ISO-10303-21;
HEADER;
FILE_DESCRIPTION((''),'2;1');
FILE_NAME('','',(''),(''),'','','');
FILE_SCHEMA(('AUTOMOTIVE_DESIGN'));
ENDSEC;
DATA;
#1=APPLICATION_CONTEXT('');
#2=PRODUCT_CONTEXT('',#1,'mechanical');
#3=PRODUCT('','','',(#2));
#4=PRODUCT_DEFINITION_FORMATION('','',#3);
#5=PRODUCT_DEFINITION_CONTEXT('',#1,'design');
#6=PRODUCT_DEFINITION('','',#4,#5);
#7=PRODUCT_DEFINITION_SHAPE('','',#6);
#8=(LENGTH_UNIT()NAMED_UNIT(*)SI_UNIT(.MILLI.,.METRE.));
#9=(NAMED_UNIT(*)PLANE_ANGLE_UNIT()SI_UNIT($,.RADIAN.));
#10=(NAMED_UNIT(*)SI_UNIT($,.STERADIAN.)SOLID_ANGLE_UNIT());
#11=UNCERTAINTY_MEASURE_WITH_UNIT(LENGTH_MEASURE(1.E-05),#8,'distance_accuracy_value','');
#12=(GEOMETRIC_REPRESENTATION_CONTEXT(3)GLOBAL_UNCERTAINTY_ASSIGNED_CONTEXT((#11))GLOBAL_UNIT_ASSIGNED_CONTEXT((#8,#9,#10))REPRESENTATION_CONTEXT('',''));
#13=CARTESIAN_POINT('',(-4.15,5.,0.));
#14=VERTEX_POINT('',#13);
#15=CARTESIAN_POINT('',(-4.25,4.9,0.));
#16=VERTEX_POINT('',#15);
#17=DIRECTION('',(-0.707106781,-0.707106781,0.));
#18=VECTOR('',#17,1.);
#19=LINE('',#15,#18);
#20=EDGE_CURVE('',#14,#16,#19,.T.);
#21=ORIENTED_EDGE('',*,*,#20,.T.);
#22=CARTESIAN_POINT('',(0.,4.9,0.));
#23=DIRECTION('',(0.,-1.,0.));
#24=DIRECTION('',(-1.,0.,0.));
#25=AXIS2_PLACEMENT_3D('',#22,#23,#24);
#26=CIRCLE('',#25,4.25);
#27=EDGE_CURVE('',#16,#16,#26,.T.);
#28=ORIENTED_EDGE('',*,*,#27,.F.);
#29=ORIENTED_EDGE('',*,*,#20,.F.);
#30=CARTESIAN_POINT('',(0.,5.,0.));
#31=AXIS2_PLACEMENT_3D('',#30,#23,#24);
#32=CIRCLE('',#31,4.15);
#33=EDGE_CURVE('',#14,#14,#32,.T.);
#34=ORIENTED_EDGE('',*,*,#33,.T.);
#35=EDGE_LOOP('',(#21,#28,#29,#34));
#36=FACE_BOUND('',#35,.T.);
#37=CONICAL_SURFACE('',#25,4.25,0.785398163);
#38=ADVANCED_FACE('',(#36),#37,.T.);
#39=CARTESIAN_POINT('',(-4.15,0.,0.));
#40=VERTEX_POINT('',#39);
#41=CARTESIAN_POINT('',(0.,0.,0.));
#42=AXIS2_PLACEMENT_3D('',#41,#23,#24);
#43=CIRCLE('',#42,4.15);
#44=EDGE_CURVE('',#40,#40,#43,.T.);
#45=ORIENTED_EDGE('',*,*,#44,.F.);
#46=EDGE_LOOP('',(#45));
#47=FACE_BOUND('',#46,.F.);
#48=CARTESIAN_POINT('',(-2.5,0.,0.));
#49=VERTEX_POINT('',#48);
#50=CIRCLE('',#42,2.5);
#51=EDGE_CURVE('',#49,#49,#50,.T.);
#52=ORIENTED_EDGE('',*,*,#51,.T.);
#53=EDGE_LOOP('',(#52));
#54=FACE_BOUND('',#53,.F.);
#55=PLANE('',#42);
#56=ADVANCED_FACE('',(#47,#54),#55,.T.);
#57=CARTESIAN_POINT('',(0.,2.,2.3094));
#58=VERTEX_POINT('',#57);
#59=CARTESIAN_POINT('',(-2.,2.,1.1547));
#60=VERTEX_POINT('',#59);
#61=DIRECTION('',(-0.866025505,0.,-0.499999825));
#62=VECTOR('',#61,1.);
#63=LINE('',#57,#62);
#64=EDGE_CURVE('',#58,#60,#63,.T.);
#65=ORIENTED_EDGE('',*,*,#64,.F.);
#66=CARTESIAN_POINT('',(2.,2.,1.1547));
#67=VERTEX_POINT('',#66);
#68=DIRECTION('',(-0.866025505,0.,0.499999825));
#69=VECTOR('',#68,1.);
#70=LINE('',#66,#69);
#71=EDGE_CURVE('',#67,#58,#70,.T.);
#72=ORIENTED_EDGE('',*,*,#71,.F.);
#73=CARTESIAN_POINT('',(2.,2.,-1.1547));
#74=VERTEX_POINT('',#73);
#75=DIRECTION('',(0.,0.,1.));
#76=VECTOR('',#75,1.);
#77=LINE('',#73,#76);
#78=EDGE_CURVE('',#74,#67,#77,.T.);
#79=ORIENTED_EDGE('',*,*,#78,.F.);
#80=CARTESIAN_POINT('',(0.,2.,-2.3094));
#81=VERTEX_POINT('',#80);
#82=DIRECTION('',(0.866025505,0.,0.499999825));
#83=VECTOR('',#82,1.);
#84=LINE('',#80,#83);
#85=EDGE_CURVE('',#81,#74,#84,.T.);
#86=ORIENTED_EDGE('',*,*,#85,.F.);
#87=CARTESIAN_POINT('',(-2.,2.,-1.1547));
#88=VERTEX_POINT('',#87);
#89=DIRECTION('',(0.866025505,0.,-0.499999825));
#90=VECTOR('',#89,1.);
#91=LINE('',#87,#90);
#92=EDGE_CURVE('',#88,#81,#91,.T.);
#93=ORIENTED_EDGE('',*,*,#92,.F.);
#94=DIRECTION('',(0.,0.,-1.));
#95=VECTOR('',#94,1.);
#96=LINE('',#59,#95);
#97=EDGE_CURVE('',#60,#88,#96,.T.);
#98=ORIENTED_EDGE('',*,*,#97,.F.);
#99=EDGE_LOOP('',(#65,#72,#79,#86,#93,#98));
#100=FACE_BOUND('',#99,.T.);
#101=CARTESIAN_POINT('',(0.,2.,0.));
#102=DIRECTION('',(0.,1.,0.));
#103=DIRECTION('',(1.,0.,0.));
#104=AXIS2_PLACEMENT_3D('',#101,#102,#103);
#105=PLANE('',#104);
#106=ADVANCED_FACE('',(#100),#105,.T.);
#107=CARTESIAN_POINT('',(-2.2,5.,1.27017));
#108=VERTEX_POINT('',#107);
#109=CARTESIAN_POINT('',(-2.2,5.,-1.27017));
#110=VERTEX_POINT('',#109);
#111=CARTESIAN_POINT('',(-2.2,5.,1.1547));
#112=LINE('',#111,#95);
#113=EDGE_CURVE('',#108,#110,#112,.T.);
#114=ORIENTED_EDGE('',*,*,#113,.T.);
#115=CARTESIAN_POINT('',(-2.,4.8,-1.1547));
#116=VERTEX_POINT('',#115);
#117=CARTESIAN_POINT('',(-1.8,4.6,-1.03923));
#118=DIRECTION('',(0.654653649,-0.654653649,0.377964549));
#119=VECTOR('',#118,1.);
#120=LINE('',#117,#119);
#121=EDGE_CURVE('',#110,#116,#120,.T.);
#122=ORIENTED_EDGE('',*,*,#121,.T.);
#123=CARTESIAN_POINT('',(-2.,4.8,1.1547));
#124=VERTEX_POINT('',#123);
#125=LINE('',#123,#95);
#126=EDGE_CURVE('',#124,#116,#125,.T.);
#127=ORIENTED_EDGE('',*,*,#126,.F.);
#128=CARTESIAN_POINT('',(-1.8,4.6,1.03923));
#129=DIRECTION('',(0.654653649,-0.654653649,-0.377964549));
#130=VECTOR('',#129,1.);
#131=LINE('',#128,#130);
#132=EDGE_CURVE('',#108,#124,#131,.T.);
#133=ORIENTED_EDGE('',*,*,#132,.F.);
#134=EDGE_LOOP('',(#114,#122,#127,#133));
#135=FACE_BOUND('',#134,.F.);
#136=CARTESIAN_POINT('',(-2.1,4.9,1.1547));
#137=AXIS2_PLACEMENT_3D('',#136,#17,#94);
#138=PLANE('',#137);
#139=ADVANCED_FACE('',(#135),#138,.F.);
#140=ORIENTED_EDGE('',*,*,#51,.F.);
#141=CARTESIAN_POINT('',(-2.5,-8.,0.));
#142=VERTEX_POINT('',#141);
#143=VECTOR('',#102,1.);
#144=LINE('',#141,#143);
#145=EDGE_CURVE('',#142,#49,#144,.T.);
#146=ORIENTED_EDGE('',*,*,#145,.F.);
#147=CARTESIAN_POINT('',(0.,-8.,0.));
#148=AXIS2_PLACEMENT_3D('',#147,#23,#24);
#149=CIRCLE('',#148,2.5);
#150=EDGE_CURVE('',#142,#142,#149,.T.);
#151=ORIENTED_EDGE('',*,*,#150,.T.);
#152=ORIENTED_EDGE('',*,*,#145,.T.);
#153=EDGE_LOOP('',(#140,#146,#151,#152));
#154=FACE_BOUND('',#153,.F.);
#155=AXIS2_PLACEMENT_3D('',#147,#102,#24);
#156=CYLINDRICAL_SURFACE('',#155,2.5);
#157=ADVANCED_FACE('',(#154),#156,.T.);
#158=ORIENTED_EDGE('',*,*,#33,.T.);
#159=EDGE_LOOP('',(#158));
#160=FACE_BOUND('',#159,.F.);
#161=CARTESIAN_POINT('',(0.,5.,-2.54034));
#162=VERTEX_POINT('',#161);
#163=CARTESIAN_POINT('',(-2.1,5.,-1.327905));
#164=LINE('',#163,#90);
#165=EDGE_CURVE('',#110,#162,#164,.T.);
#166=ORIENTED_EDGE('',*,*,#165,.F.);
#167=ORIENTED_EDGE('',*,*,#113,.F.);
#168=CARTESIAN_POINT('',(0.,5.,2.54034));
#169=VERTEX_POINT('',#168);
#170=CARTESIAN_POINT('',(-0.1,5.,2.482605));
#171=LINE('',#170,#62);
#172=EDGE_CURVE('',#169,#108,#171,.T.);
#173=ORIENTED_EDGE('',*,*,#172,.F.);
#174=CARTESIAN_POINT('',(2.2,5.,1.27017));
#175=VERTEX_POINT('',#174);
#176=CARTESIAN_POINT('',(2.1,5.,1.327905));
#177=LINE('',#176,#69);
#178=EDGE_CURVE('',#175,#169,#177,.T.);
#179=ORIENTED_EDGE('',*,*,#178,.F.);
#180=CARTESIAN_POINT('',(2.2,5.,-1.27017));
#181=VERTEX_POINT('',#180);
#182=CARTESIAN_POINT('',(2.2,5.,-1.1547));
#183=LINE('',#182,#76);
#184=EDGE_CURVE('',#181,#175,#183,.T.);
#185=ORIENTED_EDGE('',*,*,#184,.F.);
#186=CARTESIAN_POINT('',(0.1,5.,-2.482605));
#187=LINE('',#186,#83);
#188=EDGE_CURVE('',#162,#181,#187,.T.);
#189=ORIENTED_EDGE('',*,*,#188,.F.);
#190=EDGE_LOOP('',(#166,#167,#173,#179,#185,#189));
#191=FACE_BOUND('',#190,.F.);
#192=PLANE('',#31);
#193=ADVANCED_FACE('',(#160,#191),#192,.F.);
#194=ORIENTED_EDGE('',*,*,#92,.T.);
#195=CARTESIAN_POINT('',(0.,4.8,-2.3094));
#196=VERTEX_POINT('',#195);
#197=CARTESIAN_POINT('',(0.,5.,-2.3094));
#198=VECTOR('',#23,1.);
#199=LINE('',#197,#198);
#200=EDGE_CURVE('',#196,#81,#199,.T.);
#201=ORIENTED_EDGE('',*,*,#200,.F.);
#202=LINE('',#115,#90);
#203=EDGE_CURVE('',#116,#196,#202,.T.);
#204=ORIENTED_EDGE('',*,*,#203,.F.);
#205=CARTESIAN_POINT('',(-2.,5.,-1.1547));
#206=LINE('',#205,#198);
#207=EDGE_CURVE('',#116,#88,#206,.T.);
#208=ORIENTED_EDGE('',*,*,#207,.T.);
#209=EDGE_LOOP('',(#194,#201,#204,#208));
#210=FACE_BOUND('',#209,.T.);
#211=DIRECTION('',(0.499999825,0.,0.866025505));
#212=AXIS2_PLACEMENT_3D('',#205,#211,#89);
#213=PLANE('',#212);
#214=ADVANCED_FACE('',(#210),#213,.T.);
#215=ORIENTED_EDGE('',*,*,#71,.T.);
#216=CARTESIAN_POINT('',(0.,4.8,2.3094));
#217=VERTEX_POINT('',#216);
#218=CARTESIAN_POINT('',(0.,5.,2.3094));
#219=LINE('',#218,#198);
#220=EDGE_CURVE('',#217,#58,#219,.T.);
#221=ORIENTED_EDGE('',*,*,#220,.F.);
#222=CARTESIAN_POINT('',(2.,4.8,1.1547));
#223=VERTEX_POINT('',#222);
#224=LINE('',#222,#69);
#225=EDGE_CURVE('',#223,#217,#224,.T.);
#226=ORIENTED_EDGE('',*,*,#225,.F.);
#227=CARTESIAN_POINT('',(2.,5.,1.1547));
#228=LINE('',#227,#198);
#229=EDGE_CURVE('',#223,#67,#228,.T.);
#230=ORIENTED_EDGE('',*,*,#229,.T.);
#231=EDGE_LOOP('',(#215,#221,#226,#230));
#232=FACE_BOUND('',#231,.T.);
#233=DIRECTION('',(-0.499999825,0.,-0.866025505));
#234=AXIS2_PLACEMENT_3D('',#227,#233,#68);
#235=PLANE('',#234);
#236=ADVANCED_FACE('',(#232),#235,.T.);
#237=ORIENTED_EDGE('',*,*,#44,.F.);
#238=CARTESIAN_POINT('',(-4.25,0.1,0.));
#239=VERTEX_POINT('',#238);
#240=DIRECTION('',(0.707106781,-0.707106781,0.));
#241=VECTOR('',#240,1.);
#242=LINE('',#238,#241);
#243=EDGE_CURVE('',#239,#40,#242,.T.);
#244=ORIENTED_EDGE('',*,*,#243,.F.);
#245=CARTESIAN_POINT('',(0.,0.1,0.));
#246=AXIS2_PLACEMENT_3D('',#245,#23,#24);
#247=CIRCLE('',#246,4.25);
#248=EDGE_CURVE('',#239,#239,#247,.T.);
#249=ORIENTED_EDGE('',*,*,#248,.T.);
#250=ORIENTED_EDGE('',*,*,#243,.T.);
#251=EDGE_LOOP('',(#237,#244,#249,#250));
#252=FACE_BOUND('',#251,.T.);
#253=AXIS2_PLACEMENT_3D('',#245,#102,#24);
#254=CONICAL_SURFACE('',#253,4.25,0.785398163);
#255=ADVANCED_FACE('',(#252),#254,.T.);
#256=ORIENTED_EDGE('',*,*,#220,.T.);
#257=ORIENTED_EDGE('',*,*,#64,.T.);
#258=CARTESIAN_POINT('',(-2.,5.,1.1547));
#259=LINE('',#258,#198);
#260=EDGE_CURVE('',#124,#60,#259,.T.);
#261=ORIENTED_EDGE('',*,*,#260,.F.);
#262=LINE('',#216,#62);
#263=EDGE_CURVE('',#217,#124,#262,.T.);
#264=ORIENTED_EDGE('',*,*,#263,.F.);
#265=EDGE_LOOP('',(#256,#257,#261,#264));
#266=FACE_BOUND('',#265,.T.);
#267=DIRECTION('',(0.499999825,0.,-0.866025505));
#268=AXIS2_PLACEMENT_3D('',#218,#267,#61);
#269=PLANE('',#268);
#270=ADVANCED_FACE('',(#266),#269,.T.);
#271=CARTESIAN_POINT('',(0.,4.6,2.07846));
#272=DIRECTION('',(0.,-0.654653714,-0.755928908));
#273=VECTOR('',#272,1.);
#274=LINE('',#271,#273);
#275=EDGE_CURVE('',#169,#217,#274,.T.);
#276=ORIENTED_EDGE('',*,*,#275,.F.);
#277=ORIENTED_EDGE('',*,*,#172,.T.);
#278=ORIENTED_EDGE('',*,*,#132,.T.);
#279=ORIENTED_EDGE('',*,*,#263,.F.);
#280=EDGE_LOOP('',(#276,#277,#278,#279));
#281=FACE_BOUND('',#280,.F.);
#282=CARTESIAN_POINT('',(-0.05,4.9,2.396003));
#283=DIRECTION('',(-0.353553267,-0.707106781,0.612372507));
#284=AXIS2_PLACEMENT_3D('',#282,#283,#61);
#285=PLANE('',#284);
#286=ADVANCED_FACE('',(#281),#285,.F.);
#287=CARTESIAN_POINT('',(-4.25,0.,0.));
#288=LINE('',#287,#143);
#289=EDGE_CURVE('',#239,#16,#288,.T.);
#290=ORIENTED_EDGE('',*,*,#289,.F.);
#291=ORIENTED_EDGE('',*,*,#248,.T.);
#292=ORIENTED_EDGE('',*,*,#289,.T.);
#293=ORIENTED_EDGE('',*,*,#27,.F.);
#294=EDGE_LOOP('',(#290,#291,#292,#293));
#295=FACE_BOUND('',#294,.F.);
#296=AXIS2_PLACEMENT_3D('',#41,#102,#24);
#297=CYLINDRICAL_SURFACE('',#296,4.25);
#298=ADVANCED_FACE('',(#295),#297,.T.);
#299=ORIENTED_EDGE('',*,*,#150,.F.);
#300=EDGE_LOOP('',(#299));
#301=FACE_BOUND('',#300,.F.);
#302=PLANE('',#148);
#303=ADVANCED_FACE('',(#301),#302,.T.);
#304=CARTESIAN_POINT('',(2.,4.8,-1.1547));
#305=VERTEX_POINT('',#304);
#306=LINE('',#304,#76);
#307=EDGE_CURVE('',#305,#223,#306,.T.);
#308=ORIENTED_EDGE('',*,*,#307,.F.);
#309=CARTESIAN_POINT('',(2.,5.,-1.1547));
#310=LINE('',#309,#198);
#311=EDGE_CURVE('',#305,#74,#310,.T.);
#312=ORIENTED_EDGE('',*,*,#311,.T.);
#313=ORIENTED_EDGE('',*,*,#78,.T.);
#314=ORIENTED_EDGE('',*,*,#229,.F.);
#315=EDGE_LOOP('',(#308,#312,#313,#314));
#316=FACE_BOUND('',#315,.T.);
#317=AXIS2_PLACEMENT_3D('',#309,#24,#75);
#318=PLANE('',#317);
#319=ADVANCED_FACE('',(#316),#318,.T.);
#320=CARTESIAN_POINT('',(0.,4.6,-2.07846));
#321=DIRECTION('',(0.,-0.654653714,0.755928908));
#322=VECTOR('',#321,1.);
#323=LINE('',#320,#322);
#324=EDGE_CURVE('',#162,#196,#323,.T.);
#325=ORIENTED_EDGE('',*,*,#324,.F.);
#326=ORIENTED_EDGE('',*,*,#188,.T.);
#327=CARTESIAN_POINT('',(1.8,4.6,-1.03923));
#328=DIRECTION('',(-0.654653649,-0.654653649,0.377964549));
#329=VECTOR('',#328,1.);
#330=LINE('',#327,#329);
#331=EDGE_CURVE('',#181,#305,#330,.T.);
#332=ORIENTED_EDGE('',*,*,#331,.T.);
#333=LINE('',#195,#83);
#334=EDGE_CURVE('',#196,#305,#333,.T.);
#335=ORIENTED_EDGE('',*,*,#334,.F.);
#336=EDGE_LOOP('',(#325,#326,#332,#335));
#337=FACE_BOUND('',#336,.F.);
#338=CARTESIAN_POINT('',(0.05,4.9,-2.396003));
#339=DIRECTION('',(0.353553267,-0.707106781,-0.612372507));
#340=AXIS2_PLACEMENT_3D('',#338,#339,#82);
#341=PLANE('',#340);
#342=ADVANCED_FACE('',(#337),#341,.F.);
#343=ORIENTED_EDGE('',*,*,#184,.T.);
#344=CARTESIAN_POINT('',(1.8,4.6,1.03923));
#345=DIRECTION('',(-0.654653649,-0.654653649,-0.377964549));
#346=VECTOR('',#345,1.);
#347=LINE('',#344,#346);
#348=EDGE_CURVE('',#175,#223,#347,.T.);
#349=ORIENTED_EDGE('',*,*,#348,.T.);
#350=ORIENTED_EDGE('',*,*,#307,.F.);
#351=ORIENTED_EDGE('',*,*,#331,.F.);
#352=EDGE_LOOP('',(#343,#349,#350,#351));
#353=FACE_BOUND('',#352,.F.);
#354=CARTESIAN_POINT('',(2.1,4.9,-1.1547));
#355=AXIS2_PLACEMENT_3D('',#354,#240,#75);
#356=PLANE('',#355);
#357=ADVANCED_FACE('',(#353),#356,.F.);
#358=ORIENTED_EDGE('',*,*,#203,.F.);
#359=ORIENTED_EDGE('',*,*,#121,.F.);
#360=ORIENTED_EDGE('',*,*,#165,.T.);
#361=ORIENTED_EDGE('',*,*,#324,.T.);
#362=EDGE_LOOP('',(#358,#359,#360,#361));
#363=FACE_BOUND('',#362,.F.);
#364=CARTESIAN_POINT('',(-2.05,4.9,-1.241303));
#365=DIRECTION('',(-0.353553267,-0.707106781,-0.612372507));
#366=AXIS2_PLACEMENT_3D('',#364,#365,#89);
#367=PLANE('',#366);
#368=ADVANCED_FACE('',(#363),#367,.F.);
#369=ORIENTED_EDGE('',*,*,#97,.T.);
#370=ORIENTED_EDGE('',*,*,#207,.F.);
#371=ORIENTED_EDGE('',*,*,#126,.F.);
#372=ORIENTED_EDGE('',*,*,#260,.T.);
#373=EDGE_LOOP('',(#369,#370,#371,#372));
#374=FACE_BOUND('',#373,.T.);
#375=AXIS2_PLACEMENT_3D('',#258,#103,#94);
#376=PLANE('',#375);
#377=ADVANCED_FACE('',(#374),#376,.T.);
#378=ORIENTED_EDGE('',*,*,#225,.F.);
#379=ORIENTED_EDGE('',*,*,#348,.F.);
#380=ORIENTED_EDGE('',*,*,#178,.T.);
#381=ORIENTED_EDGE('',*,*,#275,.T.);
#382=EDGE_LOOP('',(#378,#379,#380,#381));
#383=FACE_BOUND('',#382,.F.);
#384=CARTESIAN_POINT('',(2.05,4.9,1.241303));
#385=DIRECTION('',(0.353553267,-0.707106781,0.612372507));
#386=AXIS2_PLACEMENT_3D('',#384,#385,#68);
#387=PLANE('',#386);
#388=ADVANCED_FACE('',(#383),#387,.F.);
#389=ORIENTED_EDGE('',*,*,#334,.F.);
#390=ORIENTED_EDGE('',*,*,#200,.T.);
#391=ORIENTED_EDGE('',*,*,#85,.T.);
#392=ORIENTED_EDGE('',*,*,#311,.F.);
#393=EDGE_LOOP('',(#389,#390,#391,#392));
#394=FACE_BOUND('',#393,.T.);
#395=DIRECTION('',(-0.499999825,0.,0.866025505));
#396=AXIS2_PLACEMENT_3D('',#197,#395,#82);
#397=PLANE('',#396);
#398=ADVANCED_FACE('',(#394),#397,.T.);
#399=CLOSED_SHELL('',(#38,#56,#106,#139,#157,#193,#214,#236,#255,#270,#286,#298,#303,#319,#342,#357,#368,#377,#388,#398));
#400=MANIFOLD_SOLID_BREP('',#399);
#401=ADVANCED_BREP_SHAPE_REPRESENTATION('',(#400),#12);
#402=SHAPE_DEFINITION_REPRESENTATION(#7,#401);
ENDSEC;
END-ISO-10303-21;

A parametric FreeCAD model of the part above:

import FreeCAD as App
import Part
import Sketcher

V = App.Vector
Q = App.Units.Quantity


def edges_at(feature, points):
    """Names of the edges that pass closest to the given points."""
    edges = feature.Shape.Edges
    near = lambda p: min(range(len(edges)), key=lambda i: edges[i].distToShape(Part.Vertex(*p))[0])
    return sorted({f"Edge{near(p) + 1}" for p in points})

doc = App.newDocument("Part")
body = doc.addObject("PartDesign::Body", "Body")

# Sketch on XY plane
sketch1 = body.newObject("Sketcher::SketchObject", "Sketch")
sketch1.AttachmentSupport = (doc.getObject("XY_Plane"), [""])
sketch1.MapMode = "FlatFace"
sketch1.addGeometry([
    Part.LineSegment(V(0, 5, 0), V(-4.2, 5, 0)),  # 0
    Part.LineSegment(V(-4.2, 5, 0), V(-4.2, 0, 0)),  # 1
    Part.LineSegment(V(-4.2, 0, 0), V(-2.5, 0, 0)),  # 2
    Part.LineSegment(V(-2.5, 0, 0), V(-2.5, -8, 0)),  # 3
    Part.LineSegment(V(-2.5, -8, 0), V(0, -8, 0)),  # 4
    Part.LineSegment(V(0, -8, 0), V(0, 5, 0)),  # 5
], False)
sketch1.addConstraint([
    Sketcher.Constraint("Coincident", 0, 2, 1, 1),
    Sketcher.Constraint("Coincident", 1, 2, 2, 1),
    Sketcher.Constraint("Coincident", 2, 2, 3, 1),
    Sketcher.Constraint("Coincident", 3, 2, 4, 1),
    Sketcher.Constraint("Coincident", 4, 2, 5, 1),
    Sketcher.Constraint("Coincident", 5, 2, 0, 1),
    Sketcher.Constraint("Horizontal", 0),
    Sketcher.Constraint("Vertical", 1),
    Sketcher.Constraint("Horizontal", 2),
    Sketcher.Constraint("Vertical", 3),
    Sketcher.Constraint("Horizontal", 4),
    Sketcher.Constraint("Vertical", 5),
    Sketcher.Constraint("PointOnObject", 1, 2, -1),
    Sketcher.Constraint("PointOnObject", 4, 2, -2),
    Sketcher.Constraint("DistanceY", 1, 2, 1, 1, Q("5 mm")),
    Sketcher.Constraint("DistanceY", 3, 2, 3, 1, Q("8 mm")),
    Sketcher.Constraint("DistanceX", 4, 1, 4, 2, Q("2.5 mm")),
    Sketcher.Constraint("DistanceX", 0, 2, 0, 1, Q("4.25 mm")),
])
revolution = body.newObject("PartDesign::Revolution", "Revolution")
revolution.Profile = sketch1
revolution.ReferenceAxis = (sketch1, ["V_Axis"])
revolution.Angle = 360

# Sketch on XZ plane
sketch2 = body.newObject("Sketcher::SketchObject", "Sketch001")
sketch2.AttachmentSupport = (doc.getObject("XZ_Plane"), [""])
sketch2.MapMode = "FlatFace"
sketch2.AttachmentOffset = App.Placement(V(0, 0, -5), App.Rotation())
sketch2.addGeometry([
    Part.LineSegment(V(2, -1.2, 0), V(0, -2.3, 0)),  # 0
    Part.LineSegment(V(0, -2.3, 0), V(-2, -1.2, 0)),  # 1
    Part.LineSegment(V(-2, -1.2, 0), V(-2, 1.2, 0)),  # 2
    Part.LineSegment(V(-2, 1.2, 0), V(0, 2.3, 0)),  # 3
    Part.LineSegment(V(0, 2.3, 0), V(2, 1.2, 0)),  # 4
    Part.LineSegment(V(2, 1.2, 0), V(2, -1.2, 0)),  # 5
], False)
sketch2.addConstraint([
    Sketcher.Constraint("Coincident", 0, 2, 1, 1),
    Sketcher.Constraint("Coincident", 1, 2, 2, 1),
    Sketcher.Constraint("Coincident", 2, 2, 3, 1),
    Sketcher.Constraint("Coincident", 3, 2, 4, 1),
    Sketcher.Constraint("Coincident", 4, 2, 5, 1),
    Sketcher.Constraint("Coincident", 5, 2, 0, 1),
    Sketcher.Constraint("Vertical", 2),
    Sketcher.Constraint("Vertical", 5),
    Sketcher.Constraint("Symmetric", 0, 2, 3, 2, -1, 1),
    Sketcher.Constraint("Symmetric", 1, 2, 4, 2, -1, 1),
    Sketcher.Constraint("PointOnObject", 0, 2, -2),
    Sketcher.Constraint("Parallel", 0, 3),
    Sketcher.Constraint("Horizontal", 2, 2, 4, 2),
    Sketcher.Constraint("DistanceX", 2, 2, 4, 2, Q("4 mm")),
    Sketcher.Constraint("Angle", 0, Q("-150 deg")),
    Sketcher.Constraint("DistanceY", 2, 1, 2, 2, Q("2.3094 mm")),
])
pocket1 = body.newObject("PartDesign::Pocket", "Pocket")
pocket1.Profile = sketch2
pocket1.Length = 3
pocket1.Reversed = True
doc.recompute()

chamfer = body.newObject("PartDesign::Chamfer", "Chamfer")
chamfer.Base = (pocket1, edges_at(pocket1, [(4.25, 5, 0), (4.25, 0, 0)]))
chamfer.Size = 0.1
doc.recompute()

chamfer2 = body.newObject("PartDesign::Chamfer", "Chamfer001")
chamfer2.Base = (chamfer, edges_at(chamfer, [
    (1, 5, 1.732),
    (-1, 5, 1.732),
    (-2, 5, 0),
    (-1, 5, -1.732),
    (1, 5, -1.732),
    (2, 5, 0),
]))
chamfer2.Size = 0.2

doc.recompute()
